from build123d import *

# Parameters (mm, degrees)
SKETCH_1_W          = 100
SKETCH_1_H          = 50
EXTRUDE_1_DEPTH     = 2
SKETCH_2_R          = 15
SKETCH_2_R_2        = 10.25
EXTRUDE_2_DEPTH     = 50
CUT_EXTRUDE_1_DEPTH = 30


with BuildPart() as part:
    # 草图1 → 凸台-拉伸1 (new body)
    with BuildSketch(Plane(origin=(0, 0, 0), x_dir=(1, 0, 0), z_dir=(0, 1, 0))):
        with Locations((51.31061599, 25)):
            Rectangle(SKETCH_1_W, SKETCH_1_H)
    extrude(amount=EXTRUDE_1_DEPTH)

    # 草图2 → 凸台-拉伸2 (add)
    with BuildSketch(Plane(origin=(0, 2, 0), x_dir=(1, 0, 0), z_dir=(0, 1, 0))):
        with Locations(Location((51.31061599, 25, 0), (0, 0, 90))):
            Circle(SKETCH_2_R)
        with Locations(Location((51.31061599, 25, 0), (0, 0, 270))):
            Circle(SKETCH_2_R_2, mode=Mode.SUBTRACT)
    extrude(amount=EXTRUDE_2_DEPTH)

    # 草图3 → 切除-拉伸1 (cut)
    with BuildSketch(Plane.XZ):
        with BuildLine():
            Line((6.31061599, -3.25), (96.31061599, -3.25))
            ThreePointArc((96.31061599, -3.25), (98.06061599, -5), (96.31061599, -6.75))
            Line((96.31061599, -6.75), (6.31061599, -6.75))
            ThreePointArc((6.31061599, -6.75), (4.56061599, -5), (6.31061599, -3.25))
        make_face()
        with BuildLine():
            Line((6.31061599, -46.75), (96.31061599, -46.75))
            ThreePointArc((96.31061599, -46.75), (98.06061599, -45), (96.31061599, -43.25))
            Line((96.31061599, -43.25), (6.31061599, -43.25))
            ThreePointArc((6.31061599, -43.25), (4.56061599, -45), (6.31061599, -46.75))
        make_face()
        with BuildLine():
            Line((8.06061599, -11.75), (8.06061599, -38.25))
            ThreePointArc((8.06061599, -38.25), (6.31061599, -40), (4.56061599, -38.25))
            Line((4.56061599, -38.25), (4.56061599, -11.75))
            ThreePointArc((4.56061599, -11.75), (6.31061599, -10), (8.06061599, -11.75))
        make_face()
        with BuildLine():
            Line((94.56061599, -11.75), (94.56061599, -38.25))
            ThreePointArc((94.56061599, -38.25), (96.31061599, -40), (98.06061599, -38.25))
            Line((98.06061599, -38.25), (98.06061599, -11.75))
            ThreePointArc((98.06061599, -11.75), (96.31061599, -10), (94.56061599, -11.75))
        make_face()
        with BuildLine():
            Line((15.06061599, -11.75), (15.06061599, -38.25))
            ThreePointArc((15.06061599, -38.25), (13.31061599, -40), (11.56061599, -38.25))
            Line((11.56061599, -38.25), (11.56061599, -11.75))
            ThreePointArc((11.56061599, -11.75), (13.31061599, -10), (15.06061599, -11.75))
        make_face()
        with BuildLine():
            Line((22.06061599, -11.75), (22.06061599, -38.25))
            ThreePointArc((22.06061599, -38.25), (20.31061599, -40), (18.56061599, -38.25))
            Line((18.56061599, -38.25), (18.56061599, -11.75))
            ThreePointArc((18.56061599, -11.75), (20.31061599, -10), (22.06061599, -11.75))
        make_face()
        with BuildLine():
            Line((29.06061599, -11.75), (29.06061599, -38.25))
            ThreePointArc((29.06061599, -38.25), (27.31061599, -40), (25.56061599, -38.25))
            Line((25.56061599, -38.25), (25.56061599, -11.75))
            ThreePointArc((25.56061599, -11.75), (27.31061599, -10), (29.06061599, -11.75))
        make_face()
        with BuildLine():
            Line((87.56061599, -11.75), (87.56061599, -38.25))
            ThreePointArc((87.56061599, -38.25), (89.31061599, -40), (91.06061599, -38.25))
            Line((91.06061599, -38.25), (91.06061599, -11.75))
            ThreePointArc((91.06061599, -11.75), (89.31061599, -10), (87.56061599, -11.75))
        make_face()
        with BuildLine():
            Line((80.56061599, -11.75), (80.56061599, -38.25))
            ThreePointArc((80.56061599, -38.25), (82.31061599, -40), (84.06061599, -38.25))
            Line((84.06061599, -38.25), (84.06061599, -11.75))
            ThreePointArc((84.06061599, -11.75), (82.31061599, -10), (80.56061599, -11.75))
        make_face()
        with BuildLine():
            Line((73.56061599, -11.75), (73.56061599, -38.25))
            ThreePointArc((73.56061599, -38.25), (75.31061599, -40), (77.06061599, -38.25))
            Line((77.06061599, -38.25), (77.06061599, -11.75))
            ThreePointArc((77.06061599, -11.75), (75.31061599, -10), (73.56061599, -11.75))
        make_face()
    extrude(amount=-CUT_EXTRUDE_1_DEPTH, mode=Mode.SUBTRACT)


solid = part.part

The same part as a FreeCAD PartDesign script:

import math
import FreeCAD as App
import Part
import Sketcher


def add_polygon(sketch, points):
    """Adds a closed chain of lines whose ends are joined by coincident constraints."""
    first, n = sketch.GeometryCount, len(points)
    for a, b in zip(points, points[1:] + points[:1]):
        sketch.addGeometry(Part.LineSegment(App.Vector(*a, 0), App.Vector(*b, 0)), False)
    for i in range(n):
        sketch.addConstraint(Sketcher.Constraint("Coincident", first + i, 2, first + (i + 1) % n, 1))

doc = App.newDocument("Part")
params = doc.addObject("Spreadsheet::Sheet", "Params")
for row, (alias, value) in enumerate([
    ("sketch1_width", "100 mm"),
    ("sketch1_height", "50 mm"),
    ("pad1_length", "2 mm"),
    ("sketch2_diameter", "30 mm"),
    ("sketch2_diameter2", "20.5 mm"),
    ("pad2_length", "50 mm"),
    ("sketch3_width", "90 mm"),
    ("sketch3_radius", "1.75 mm"),
    ("sketch3_height", "26.5 mm"),
    ("pocket1_length", "30 mm"),
], start=1):
    params.set(f"A{row}", alias)
    params.set(f"B{row}", "=" + value)
    params.setAlias(f"B{row}", alias)

body = doc.addObject("PartDesign::Body", "Body")

# Sketch on XZ plane
sketch1 = body.newObject("Sketcher::SketchObject", "Sketch")
sketch1.AttachmentSupport = (doc.getObject("XZ_Plane"), [""])
sketch1.MapMode = "FlatFace"
add_polygon(sketch1, [(1, -50), (1, 0), (101, 0), (101, -50)])  # lines 0-3
sketch1.addConstraint(Sketcher.Constraint("Vertical", 0))
sketch1.addConstraint(Sketcher.Constraint("Horizontal", 1))
sketch1.addConstraint(Sketcher.Constraint("Vertical", 2))
sketch1.addConstraint(Sketcher.Constraint("Horizontal", 3))
sketch1.addConstraint(Sketcher.Constraint("PointOnObject", 0, 2, -1))
sketch1.addConstraint(Sketcher.Constraint("DistanceX", 1, 1, 1, 2, 100.0))
sketch1.addConstraint(Sketcher.Constraint("DistanceY", 0, 1, 0, 2, 50.0))
sketch1.addConstraint(Sketcher.Constraint("DistanceX", -1, 1, 0, 2, 1.310616))
sketch1.setExpression("Constraints[9]", "Params.sketch1_width")
sketch1.setExpression("Constraints[10]", "Params.sketch1_height")
pad1 = body.newObject("PartDesign::Pad", "Pad")
pad1.Profile = sketch1
pad1.setExpression("Length", "Params.pad1_length")
pad1.Reversed = True

# Sketch on XZ plane
sketch2 = body.newObject("Sketcher::SketchObject", "Sketch001")
sketch2.AttachmentSupport = (doc.getObject("XZ_Plane"), [""])
sketch2.MapMode = "FlatFace"
sketch2.AttachmentOffset = App.Placement(App.Vector(0, 0, -2), App.Rotation())
sketch2.addGeometry(Part.Circle(App.Vector(51, -25, 0), App.Vector(0, 0, 1), 15), False)
sketch2.addGeometry(Part.Circle(App.Vector(51, -25, 0), App.Vector(0, 0, 1), 10), False)
sketch2.addConstraint(Sketcher.Constraint("Coincident", 1, 3, 0, 3))
sketch2.addConstraint(Sketcher.Constraint("Diameter", 0, 30.0))
sketch2.addConstraint(Sketcher.Constraint("Diameter", 1, 20.5))
sketch2.addConstraint(Sketcher.Constraint("DistanceY", 0, 3, -1, 1, 25.0))
sketch2.addConstraint(Sketcher.Constraint("DistanceX", -1, 1, 0, 3, 51.310616))
sketch2.setExpression("Constraints[1]", "Params.sketch2_diameter")
sketch2.setExpression("Constraints[2]", "Params.sketch2_diameter2")
pad2 = body.newObject("PartDesign::Pad", "Pad001")
pad2.Profile = sketch2
pad2.setExpression("Length", "Params.pad2_length")
pad2.Reversed = True

# Sketch on XZ plane
sketch3 = body.newObject("Sketcher::SketchObject", "Sketch002")
sketch3.AttachmentSupport = (doc.getObject("XZ_Plane"), [""])
sketch3.MapMode = "FlatFace"
sketch3.addGeometry(Part.LineSegment(App.Vector(96.3, -3.2, 0), App.Vector(6.3, -3.2, 0)), False)
sketch3.addGeometry(Part.ArcOfCircle(Part.Circle(App.Vector(6.3, -5, 0), App.Vector(0, 0, 1), 1.8), math.radians(90), math.radians(270)), False)
sketch3.addGeometry(Part.LineSegment(App.Vector(6.3, -6.8, 0), App.Vector(96.3, -6.8, 0)), False)
sketch3.addGeometry(Part.ArcOfCircle(Part.Circle(App.Vector(96.3, -5, 0), App.Vector(0, 0, 1), 1.8), math.radians(-90), math.radians(90)), False)
sketch3.addGeometry(Part.LineSegment(App.Vector(6.3, -46.8, 0), App.Vector(96.3, -46.8, 0)), False)
sketch3.addGeometry(Part.ArcOfCircle(Part.Circle(App.Vector(96.3, -45, 0), App.Vector(0, 0, 1), 1.8), math.radians(-90), math.radians(90)), False)
sketch3.addGeometry(Part.LineSegment(App.Vector(96.3, -43.2, 0), App.Vector(6.3, -43.2, 0)), False)
sketch3.addGeometry(Part.ArcOfCircle(Part.Circle(App.Vector(6.3, -45, 0), App.Vector(0, 0, 1), 1.8), math.radians(90), math.radians(270)), False)
sketch3.addGeometry(Part.LineSegment(App.Vector(8.1, -38.2, 0), App.Vector(8.1, -11.8, 0)), False)
sketch3.addGeometry(Part.ArcOfCircle(Part.Circle(App.Vector(6.3, -11.8, 0), App.Vector(0, 0, 1), 1.8), math.radians(0), math.radians(180)), False)
sketch3.addGeometry(Part.LineSegment(App.Vector(4.6, -11.8, 0), App.Vector(4.6, -38.2, 0)), False)
sketch3.addGeometry(Part.ArcOfCircle(Part.Circle(App.Vector(6.3, -38.2, 0), App.Vector(0, 0, 1), 1.8), math.radians(180), math.radians(360)), False)
sketch3.addGeometry(Part.LineSegment(App.Vector(94.6, -11.8, 0), App.Vector(94.6, -38.2, 0)), False)
sketch3.addGeometry(Part.ArcOfCircle(Part.Circle(App.Vector(96.3, -38.2, 0), App.Vector(0, 0, 1), 1.8), math.radians(180), math.radians(360)), False)
sketch3.addGeometry(Part.LineSegment(App.Vector(98.1, -38.2, 0), App.Vector(98.1, -11.8, 0)), False)
sketch3.addGeometry(Part.ArcOfCircle(Part.Circle(App.Vector(96.3, -11.8, 0), App.Vector(0, 0, 1), 1.8), math.radians(0), math.radians(180)), False)
sketch3.addGeometry(Part.LineSegment(App.Vector(15.1, -38.2, 0), App.Vector(15.1, -11.8, 0)), False)
sketch3.addGeometry(Part.ArcOfCircle(Part.Circle(App.Vector(13.3, -11.8, 0), App.Vector(0, 0, 1), 1.8), math.radians(0), math.radians(180)), False)
sketch3.addGeometry(Part.LineSegment(App.Vector(11.6, -11.8, 0), App.Vector(11.6, -38.2, 0)), False)
sketch3.addGeometry(Part.ArcOfCircle(Part.Circle(App.Vector(13.3, -38.2, 0), App.Vector(0, 0, 1), 1.8), math.radians(180), math.radians(360)), False)
sketch3.addGeometry(Part.LineSegment(App.Vector(22.1, -38.2, 0), App.Vector(22.1, -11.8, 0)), False)
sketch3.addGeometry(Part.ArcOfCircle(Part.Circle(App.Vector(20.3, -11.8, 0), App.Vector(0, 0, 1), 1.8), math.radians(0), math.radians(180)), False)
sketch3.addGeometry(Part.LineSegment(App.Vector(18.6, -11.8, 0), App.Vector(18.6, -38.2, 0)), False)
sketch3.addGeometry(Part.ArcOfCircle(Part.Circle(App.Vector(20.3, -38.2, 0), App.Vector(0, 0, 1), 1.8), math.radians(180), math.radians(360)), False)
sketch3.addGeometry(Part.LineSegment(App.Vector(29.1, -38.2, 0), App.Vector(29.1, -11.8, 0)), False)
sketch3.addGeometry(Part.ArcOfCircle(Part.Circle(App.Vector(27.3, -11.8, 0), App.Vector(0, 0, 1), 1.8), math.radians(0), math.radians(180)), False)
sketch3.addGeometry(Part.LineSegment(App.Vector(25.6, -11.8, 0), App.Vector(25.6, -38.2, 0)), False)
sketch3.addGeometry(Part.ArcOfCircle(Part.Circle(App.Vector(27.3, -38.2, 0), App.Vector(0, 0, 1), 1.8), math.radians(180), math.radians(360)), False)
sketch3.addGeometry(Part.LineSegment(App.Vector(87.6, -11.8, 0), App.Vector(87.6, -38.2, 0)), False)
sketch3.addGeometry(Part.ArcOfCircle(Part.Circle(App.Vector(89.3, -38.2, 0), App.Vector(0, 0, 1), 1.8), math.radians(180), math.radians(360)), False)
sketch3.addGeometry(Part.LineSegment(App.Vector(91.1, -38.2, 0), App.Vector(91.1, -11.8, 0)), False)
sketch3.addGeometry(Part.ArcOfCircle(Part.Circle(App.Vector(89.3, -11.8, 0), App.Vector(0, 0, 1), 1.8), math.radians(0), math.radians(180)), False)
sketch3.addGeometry(Part.LineSegment(App.Vector(80.6, -11.8, 0), App.Vector(80.6, -38.2, 0)), False)
sketch3.addGeometry(Part.ArcOfCircle(Part.Circle(App.Vector(82.3, -38.2, 0), App.Vector(0, 0, 1), 1.8), math.radians(180), math.radians(360)), False)
sketch3.addGeometry(Part.LineSegment(App.Vector(84.1, -38.2, 0), App.Vector(84.1, -11.8, 0)), False)
sketch3.addGeometry(Part.ArcOfCircle(Part.Circle(App.Vector(82.3, -11.8, 0), App.Vector(0, 0, 1), 1.8), math.radians(0), math.radians(180)), False)
sketch3.addGeometry(Part.LineSegment(App.Vector(73.6, -11.8, 0), App.Vector(73.6, -38.2, 0)), False)
sketch3.addGeometry(Part.ArcOfCircle(Part.Circle(App.Vector(75.3, -38.2, 0), App.Vector(0, 0, 1), 1.8), math.radians(180), math.radians(360)), False)
sketch3.addGeometry(Part.LineSegment(App.Vector(77.1, -38.2, 0), App.Vector(77.1, -11.8, 0)), False)
sketch3.addGeometry(Part.ArcOfCircle(Part.Circle(App.Vector(75.3, -11.8, 0), App.Vector(0, 0, 1), 1.8), math.radians(0), math.radians(180)), False)
sketch3.addConstraint(Sketcher.Constraint("Tangent", 0, 2, 1, 1))
sketch3.addConstraint(Sketcher.Constraint("Tangent", 1, 2, 2, 1))
sketch3.addConstraint(Sketcher.Constraint("Tangent", 2, 2, 3, 1))
sketch3.addConstraint(Sketcher.Constraint("Tangent", 3, 2, 0, 1))
sketch3.addConstraint(Sketcher.Constraint("Tangent", 4, 2, 5, 1))
sketch3.addConstraint(Sketcher.Constraint("Tangent", 5, 2, 6, 1))
sketch3.addConstraint(Sketcher.Constraint("Tangent", 6, 2, 7, 1))
sketch3.addConstraint(Sketcher.Constraint("Tangent", 7, 2, 4, 1))
sketch3.addConstraint(Sketcher.Constraint("Tangent", 8, 2, 9, 1))
sketch3.addConstraint(Sketcher.Constraint("Tangent", 9, 2, 10, 1))
sketch3.addConstraint(Sketcher.Constraint("Tangent", 10, 2, 11, 1))
sketch3.addConstraint(Sketcher.Constraint("Tangent", 11, 2, 8, 1))
sketch3.addConstraint(Sketcher.Constraint("Tangent", 12, 2, 13, 1))
sketch3.addConstraint(Sketcher.Constraint("Tangent", 13, 2, 14, 1))
sketch3.addConstraint(Sketcher.Constraint("Tangent", 14, 2, 15, 1))
sketch3.addConstraint(Sketcher.Constraint("Tangent", 15, 2, 12, 1))
sketch3.addConstraint(Sketcher.Constraint("Tangent", 16, 2, 17, 1))
sketch3.addConstraint(Sketcher.Constraint("Tangent", 17, 2, 18, 1))
sketch3.addConstraint(Sketcher.Constraint("Tangent", 18, 2, 19, 1))
sketch3.addConstraint(Sketcher.Constraint("Tangent", 19, 2, 16, 1))
sketch3.addConstraint(Sketcher.Constraint("Tangent", 20, 2, 21, 1))
sketch3.addConstraint(Sketcher.Constraint("Tangent", 21, 2, 22, 1))
sketch3.addConstraint(Sketcher.Constraint("Tangent", 22, 2, 23, 1))
sketch3.addConstraint(Sketcher.Constraint("Tangent", 23, 2, 20, 1))
sketch3.addConstraint(Sketcher.Constraint("Tangent", 24, 2, 25, 1))
sketch3.addConstraint(Sketcher.Constraint("Tangent", 25, 2, 26, 1))
sketch3.addConstraint(Sketcher.Constraint("Tangent", 26, 2, 27, 1))
sketch3.addConstraint(Sketcher.Constraint("Tangent", 27, 2, 24, 1))
sketch3.addConstraint(Sketcher.Constraint("Tangent", 28, 2, 29, 1))
sketch3.addConstraint(Sketcher.Constraint("Tangent", 29, 2, 30, 1))
sketch3.addConstraint(Sketcher.Constraint("Tangent", 30, 2, 31, 1))
sketch3.addConstraint(Sketcher.Constraint("Tangent", 31, 2, 28, 1))
sketch3.addConstraint(Sketcher.Constraint("Tangent", 32, 2, 33, 1))
sketch3.addConstraint(Sketcher.Constraint("Tangent", 33, 2, 34, 1))
sketch3.addConstraint(Sketcher.Constraint("Tangent", 34, 2, 35, 1))
sketch3.addConstraint(Sketcher.Constraint("Tangent", 35, 2, 32, 1))
sketch3.addConstraint(Sketcher.Constraint("Tangent", 36, 2, 37, 1))
sketch3.addConstraint(Sketcher.Constraint("Tangent", 37, 2, 38, 1))
sketch3.addConstraint(Sketcher.Constraint("Tangent", 38, 2, 39, 1))
sketch3.addConstraint(Sketcher.Constraint("Tangent", 39, 2, 36, 1))
sketch3.addConstraint(Sketcher.Constraint("Horizontal", 0))
sketch3.addConstraint(Sketcher.Constraint("Horizontal", 2))
sketch3.addConstraint(Sketcher.Constraint("Horizontal", 4))
sketch3.addConstraint(Sketcher.Constraint("Horizontal", 6))
sketch3.addConstraint(Sketcher.Constraint("Vertical", 8))
sketch3.addConstraint(Sketcher.Constraint("Vertical", 10))
sketch3.addConstraint(Sketcher.Constraint("Vertical", 12))
sketch3.addConstraint(Sketcher.Constraint("Vertical", 14))
sketch3.addConstraint(Sketcher.Constraint("Vertical", 16))
sketch3.addConstraint(Sketcher.Constraint("Vertical", 18))
sketch3.addConstraint(Sketcher.Constraint("Vertical", 20))
sketch3.addConstraint(Sketcher.Constraint("Vertical", 22))
sketch3.addConstraint(Sketcher.Constraint("Vertical", 24))
sketch3.addConstraint(Sketcher.Constraint("Vertical", 26))
sketch3.addConstraint(Sketcher.Constraint("Vertical", 28))
sketch3.addConstraint(Sketcher.Constraint("Vertical", 30))
sketch3.addConstraint(Sketcher.Constraint("Vertical", 32))
sketch3.addConstraint(Sketcher.Constraint("Vertical", 34))
sketch3.addConstraint(Sketcher.Constraint("Vertical", 36))
sketch3.addConstraint(Sketcher.Constraint("Vertical", 38))
sketch3.addConstraint(Sketcher.Constraint("Equal", 3, 5))
sketch3.addConstraint(Sketcher.Constraint("Equal", 7, 9))
sketch3.addConstraint(Sketcher.Constraint("Equal", 11, 13))
sketch3.addConstraint(Sketcher.Constraint("Equal", 15, 17))
sketch3.addConstraint(Sketcher.Constraint("Equal", 19, 21))
sketch3.addConstraint(Sketcher.Constraint("Equal", 23, 25))
sketch3.addConstraint(Sketcher.Constraint("Equal", 27, 29))
sketch3.addConstraint(Sketcher.Constraint("Equal", 31, 33))
sketch3.addConstraint(Sketcher.Constraint("Equal", 35, 37))
sketch3.addConstraint(Sketcher.Constraint("Horizontal", 11, 3, 13, 3))
sketch3.addConstraint(Sketcher.Constraint("Horizontal", 9, 3, 15, 3))
sketch3.addConstraint(Sketcher.Constraint("Horizontal", 15, 3, 17, 3))
sketch3.addConstraint(Sketcher.Constraint("Horizontal", 13, 3, 19, 3))
sketch3.addConstraint(Sketcher.Constraint("Horizontal", 17, 3, 21, 3))
sketch3.addConstraint(Sketcher.Constraint("Horizontal", 19, 3, 23, 3))
sketch3.addConstraint(Sketcher.Constraint("Horizontal", 21, 3, 25, 3))
sketch3.addConstraint(Sketcher.Constraint("Horizontal", 23, 3, 27, 3))
sketch3.addConstraint(Sketcher.Constraint("Horizontal", 27, 3, 29, 3))
sketch3.addConstraint(Sketcher.Constraint("Horizontal", 25, 3, 31, 3))
sketch3.addConstraint(Sketcher.Constraint("Horizontal", 29, 3, 33, 3))
sketch3.addConstraint(Sketcher.Constraint("Horizontal", 31, 3, 35, 3))
sketch3.addConstraint(Sketcher.Constraint("Horizontal", 33, 3, 37, 3))
sketch3.addConstraint(Sketcher.Constraint("Horizontal", 35, 3, 39, 3))
sketch3.addConstraint(Sketcher.Constraint("Vertical", 3, 3, 5, 3))
sketch3.addConstraint(Sketcher.Constraint("Vertical", 1, 3, 7, 3))
sketch3.addConstraint(Sketcher.Constraint("Vertical", 7, 3, 9, 3))
sketch3.addConstraint(Sketcher.Constraint("Vertical", 5, 3, 13, 3))
sketch3.addConstraint(Sketcher.Constraint("DistanceX", 0, 2, 0, 1, 90.0))
sketch3.addConstraint(Sketcher.Constraint("Radius", 1, 1.75))
sketch3.addConstraint(Sketcher.Constraint("DistanceY", 8, 1, 8, 2, 26.5))
sketch3.addConstraint(Sketcher.Constraint("DistanceY", 1, 3, -1, 1, 5.0))
sketch3.addConstraint(Sketcher.Constraint("DistanceY", 5, 3, -1, 1, 45.0))
sketch3.addConstraint(Sketcher.Constraint("DistanceX", 9, 3, 17, 3, 7.0))
sketch3.addConstraint(Sketcher.Constraint("DistanceX", 17, 3, 21, 3, 7.0))
sketch3.addConstraint(Sketcher.Constraint("DistanceX", 21, 3, 25, 3, 7.0))
sketch3.addConstraint(Sketcher.Constraint("DistanceX", 29, 3, 13, 3, 7.0))
sketch3.addConstraint(Sketcher.Constraint("DistanceX", 33, 3, 29, 3, 7.0))
sketch3.addConstraint(Sketcher.Constraint("DistanceX", 37, 3, 33, 3, 7.0))
sketch3.addConstraint(Sketcher.Constraint("DistanceY", 9, 3, 1, 2, 5.0))
sketch3.addConstraint(Sketcher.Constraint("DistanceX", -1, 1, 1, 3, 6.310616))
sketch3.setExpression("Constraints[87]", "Params.sketch3_width")
sketch3.setExpression("Constraints[88]", "Params.sketch3_radius")
sketch3.setExpression("Constraints[89]", "Params.sketch3_height")
pocket1 = body.newObject("PartDesign::Pocket", "Pocket")
pocket1.Profile = sketch3
pocket1.setExpression("Length", "Params.pocket1_length")

doc.recompute()
